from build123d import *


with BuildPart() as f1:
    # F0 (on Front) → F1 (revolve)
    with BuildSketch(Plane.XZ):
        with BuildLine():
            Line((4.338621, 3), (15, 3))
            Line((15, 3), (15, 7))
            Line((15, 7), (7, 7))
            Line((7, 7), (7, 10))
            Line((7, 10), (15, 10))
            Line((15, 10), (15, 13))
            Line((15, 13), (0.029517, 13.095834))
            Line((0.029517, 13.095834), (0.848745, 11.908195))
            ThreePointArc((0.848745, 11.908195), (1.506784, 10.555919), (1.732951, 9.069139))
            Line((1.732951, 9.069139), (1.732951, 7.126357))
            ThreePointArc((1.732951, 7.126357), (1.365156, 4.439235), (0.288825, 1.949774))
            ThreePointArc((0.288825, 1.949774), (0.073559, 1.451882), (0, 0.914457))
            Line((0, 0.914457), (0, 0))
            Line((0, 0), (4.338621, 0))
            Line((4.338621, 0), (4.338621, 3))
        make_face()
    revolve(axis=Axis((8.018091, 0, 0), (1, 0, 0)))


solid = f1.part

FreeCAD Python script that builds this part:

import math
import FreeCAD as App
import Part
import Sketcher
Q = App.Units.Quantity

doc = App.newDocument("Part")
params = doc.addObject("Spreadsheet::Sheet", "Params")
for row, (alias, value) in enumerate([
    ("sketch1_radius", "2 mm"),
    ("sketch1_width", "8 mm"),
    ("sketch1_height", "4 mm"),
    ("sketch1_height2", "3 mm"),
    ("revolution_angle", "360 deg"),
], start=1):
    params.set(f"A{row}", alias)
    params.set(f"B{row}", "=" + value)
    params.setAlias(f"B{row}", alias)

body = doc.addObject("PartDesign::Body", "Body")

sketch1 = doc.addObject("Sketcher::SketchObject", "Sketch")
body.addObject(sketch1)
sketch1.AttachmentSupport = (doc.XZ_Plane, [""])
sketch1.MapMode = "FlatFace"
sketch1.addGeometry([
    Part.LineSegment(App.Vector(4.338621, 3, 0), App.Vector(15, 3, 0)),
    Part.LineSegment(App.Vector(15, 3, 0), App.Vector(15, 7, 0)),
    Part.LineSegment(App.Vector(15, 7, 0), App.Vector(7, 7, 0)),
    Part.LineSegment(App.Vector(7, 7, 0), App.Vector(7, 10, 0)),
    Part.LineSegment(App.Vector(7, 10, 0), App.Vector(15, 10, 0)),
    Part.LineSegment(App.Vector(15, 10, 0), App.Vector(15, 13, 0)),
    Part.LineSegment(App.Vector(15, 13, 0), App.Vector(0.029517, 13.095834, 0)),
    Part.LineSegment(App.Vector(0.029517, 13.095834, 0), App.Vector(0.848745, 11.908195, 0)),
    Part.ArcOfCircle(Part.Circle(App.Vector(-3.267056, 9.069137, 0), App.Vector(0, 0, 1), 5.000007), math.radians(0.000027), math.radians(34.597712)),
    Part.LineSegment(App.Vector(1.732951, 9.069139, 0), App.Vector(1.732951, 7.126357, 0)),
    Part.ArcOfCircle(Part.Circle(App.Vector(-8.267046, 7.126357, 0), App.Vector(0, 0, 1), 9.999997), math.radians(-31.175316), math.radians(0)),
    Part.ArcOfCircle(Part.Circle(App.Vector(2, 0.914457, 0), App.Vector(0, 0, 1), 2), math.radians(148.824703), math.radians(180.000014)),
    Part.LineSegment(App.Vector(0, 0.914457, 0), App.Vector(0, 0, 0)),
    Part.LineSegment(App.Vector(0, 0, 0), App.Vector(4.338621, 0, 0)),
    Part.LineSegment(App.Vector(4.338621, 0, 0), App.Vector(4.338621, 3, 0)),
], False)
sketch1.addConstraint([
    Sketcher.Constraint("Coincident", 0, 2, 1, 1),
    Sketcher.Constraint("Coincident", 1, 2, 2, 1),
    Sketcher.Constraint("Coincident", 2, 2, 3, 1),
    Sketcher.Constraint("Coincident", 3, 2, 4, 1),
    Sketcher.Constraint("Coincident", 4, 2, 5, 1),
    Sketcher.Constraint("Coincident", 5, 2, 6, 1),
    Sketcher.Constraint("Coincident", 6, 2, 7, 1),
    Sketcher.Constraint("Tangent", 7, 2, 8, 2),
    Sketcher.Constraint("Tangent", 8, 1, 9, 1),
    Sketcher.Constraint("Tangent", 9, 2, 10, 2),
    Sketcher.Constraint("Tangent", 10, 1, 11, 1),
    Sketcher.Constraint("Tangent", 11, 2, 12, 1),
    Sketcher.Constraint("Coincident", 12, 2, 13, 1),
    Sketcher.Constraint("Coincident", 13, 2, 14, 1),
    Sketcher.Constraint("Coincident", 14, 2, 0, 1),
    Sketcher.Constraint("Horizontal", 0),
    Sketcher.Constraint("Vertical", 1),
    Sketcher.Constraint("Horizontal", 2),
    Sketcher.Constraint("Vertical", 3),
    Sketcher.Constraint("Horizontal", 4),
    Sketcher.Constraint("Vertical", 5),
    Sketcher.Constraint("Vertical", 9),
    Sketcher.Constraint("Vertical", 12),
    Sketcher.Constraint("Horizontal", 13),
    Sketcher.Constraint("Vertical", 14),
    Sketcher.Constraint("Coincident", 12, 2, -1, 1),
    Sketcher.Constraint("Vertical", 1, 2, 4, 2),
    Sketcher.Constraint("Equal", 3, 5),
    Sketcher.Constraint("Equal", 5, 14),
    Sketcher.Constraint("Radius", 11, Q("2 mm")),
    Sketcher.Constraint("DistanceX", 2, 2, 2, 1, Q("8 mm")),
    Sketcher.Constraint("DistanceY", 1, 1, 1, 2, Q("4 mm")),
    Sketcher.Constraint("DistanceY", 3, 1, 3, 2, Q("3 mm")),
    Sketcher.Constraint("DistanceX", -1, 1, 0, 2, Q("15 mm")),
    Sketcher.Constraint("Radius", 8, Q("5.000007 mm")),
    Sketcher.Constraint("Radius", 10, Q("9.999997 mm")),
    Sketcher.Constraint("DistanceX", 0, 1, 0, 2, Q("10.661379 mm")),
    Sketcher.Constraint("DistanceY", 11, 3, 10, 3, Q("6.2119 mm")),
    Sketcher.Constraint("DistanceX", 8, 3, 7, 2, Q("4.115801 mm")),
    Sketcher.Constraint("Distance", 6, Q("14.97079 mm")),
    Sketcher.Constraint("DistanceY", 9, 2, 9, 1, Q("1.942782 mm")),
    Sketcher.Constraint("DistanceY", 12, 2, 12, 1, Q("0.914457 mm")),
])
sketch1.setExpression("Constraints[29]", "Params.sketch1_radius")
sketch1.setExpression("Constraints[30]", "Params.sketch1_width")
sketch1.setExpression("Constraints[31]", "Params.sketch1_height")
sketch1.setExpression("Constraints[32]", "Params.sketch1_height2")
revolution = doc.addObject("PartDesign::Revolution", "Revolution")
body.addObject(revolution)
revolution.Profile = sketch1
revolution.ReferenceAxis = (sketch1, ["H_Axis"])
revolution.setExpression("Angle", "Params.revolution_angle")

doc.recompute()
